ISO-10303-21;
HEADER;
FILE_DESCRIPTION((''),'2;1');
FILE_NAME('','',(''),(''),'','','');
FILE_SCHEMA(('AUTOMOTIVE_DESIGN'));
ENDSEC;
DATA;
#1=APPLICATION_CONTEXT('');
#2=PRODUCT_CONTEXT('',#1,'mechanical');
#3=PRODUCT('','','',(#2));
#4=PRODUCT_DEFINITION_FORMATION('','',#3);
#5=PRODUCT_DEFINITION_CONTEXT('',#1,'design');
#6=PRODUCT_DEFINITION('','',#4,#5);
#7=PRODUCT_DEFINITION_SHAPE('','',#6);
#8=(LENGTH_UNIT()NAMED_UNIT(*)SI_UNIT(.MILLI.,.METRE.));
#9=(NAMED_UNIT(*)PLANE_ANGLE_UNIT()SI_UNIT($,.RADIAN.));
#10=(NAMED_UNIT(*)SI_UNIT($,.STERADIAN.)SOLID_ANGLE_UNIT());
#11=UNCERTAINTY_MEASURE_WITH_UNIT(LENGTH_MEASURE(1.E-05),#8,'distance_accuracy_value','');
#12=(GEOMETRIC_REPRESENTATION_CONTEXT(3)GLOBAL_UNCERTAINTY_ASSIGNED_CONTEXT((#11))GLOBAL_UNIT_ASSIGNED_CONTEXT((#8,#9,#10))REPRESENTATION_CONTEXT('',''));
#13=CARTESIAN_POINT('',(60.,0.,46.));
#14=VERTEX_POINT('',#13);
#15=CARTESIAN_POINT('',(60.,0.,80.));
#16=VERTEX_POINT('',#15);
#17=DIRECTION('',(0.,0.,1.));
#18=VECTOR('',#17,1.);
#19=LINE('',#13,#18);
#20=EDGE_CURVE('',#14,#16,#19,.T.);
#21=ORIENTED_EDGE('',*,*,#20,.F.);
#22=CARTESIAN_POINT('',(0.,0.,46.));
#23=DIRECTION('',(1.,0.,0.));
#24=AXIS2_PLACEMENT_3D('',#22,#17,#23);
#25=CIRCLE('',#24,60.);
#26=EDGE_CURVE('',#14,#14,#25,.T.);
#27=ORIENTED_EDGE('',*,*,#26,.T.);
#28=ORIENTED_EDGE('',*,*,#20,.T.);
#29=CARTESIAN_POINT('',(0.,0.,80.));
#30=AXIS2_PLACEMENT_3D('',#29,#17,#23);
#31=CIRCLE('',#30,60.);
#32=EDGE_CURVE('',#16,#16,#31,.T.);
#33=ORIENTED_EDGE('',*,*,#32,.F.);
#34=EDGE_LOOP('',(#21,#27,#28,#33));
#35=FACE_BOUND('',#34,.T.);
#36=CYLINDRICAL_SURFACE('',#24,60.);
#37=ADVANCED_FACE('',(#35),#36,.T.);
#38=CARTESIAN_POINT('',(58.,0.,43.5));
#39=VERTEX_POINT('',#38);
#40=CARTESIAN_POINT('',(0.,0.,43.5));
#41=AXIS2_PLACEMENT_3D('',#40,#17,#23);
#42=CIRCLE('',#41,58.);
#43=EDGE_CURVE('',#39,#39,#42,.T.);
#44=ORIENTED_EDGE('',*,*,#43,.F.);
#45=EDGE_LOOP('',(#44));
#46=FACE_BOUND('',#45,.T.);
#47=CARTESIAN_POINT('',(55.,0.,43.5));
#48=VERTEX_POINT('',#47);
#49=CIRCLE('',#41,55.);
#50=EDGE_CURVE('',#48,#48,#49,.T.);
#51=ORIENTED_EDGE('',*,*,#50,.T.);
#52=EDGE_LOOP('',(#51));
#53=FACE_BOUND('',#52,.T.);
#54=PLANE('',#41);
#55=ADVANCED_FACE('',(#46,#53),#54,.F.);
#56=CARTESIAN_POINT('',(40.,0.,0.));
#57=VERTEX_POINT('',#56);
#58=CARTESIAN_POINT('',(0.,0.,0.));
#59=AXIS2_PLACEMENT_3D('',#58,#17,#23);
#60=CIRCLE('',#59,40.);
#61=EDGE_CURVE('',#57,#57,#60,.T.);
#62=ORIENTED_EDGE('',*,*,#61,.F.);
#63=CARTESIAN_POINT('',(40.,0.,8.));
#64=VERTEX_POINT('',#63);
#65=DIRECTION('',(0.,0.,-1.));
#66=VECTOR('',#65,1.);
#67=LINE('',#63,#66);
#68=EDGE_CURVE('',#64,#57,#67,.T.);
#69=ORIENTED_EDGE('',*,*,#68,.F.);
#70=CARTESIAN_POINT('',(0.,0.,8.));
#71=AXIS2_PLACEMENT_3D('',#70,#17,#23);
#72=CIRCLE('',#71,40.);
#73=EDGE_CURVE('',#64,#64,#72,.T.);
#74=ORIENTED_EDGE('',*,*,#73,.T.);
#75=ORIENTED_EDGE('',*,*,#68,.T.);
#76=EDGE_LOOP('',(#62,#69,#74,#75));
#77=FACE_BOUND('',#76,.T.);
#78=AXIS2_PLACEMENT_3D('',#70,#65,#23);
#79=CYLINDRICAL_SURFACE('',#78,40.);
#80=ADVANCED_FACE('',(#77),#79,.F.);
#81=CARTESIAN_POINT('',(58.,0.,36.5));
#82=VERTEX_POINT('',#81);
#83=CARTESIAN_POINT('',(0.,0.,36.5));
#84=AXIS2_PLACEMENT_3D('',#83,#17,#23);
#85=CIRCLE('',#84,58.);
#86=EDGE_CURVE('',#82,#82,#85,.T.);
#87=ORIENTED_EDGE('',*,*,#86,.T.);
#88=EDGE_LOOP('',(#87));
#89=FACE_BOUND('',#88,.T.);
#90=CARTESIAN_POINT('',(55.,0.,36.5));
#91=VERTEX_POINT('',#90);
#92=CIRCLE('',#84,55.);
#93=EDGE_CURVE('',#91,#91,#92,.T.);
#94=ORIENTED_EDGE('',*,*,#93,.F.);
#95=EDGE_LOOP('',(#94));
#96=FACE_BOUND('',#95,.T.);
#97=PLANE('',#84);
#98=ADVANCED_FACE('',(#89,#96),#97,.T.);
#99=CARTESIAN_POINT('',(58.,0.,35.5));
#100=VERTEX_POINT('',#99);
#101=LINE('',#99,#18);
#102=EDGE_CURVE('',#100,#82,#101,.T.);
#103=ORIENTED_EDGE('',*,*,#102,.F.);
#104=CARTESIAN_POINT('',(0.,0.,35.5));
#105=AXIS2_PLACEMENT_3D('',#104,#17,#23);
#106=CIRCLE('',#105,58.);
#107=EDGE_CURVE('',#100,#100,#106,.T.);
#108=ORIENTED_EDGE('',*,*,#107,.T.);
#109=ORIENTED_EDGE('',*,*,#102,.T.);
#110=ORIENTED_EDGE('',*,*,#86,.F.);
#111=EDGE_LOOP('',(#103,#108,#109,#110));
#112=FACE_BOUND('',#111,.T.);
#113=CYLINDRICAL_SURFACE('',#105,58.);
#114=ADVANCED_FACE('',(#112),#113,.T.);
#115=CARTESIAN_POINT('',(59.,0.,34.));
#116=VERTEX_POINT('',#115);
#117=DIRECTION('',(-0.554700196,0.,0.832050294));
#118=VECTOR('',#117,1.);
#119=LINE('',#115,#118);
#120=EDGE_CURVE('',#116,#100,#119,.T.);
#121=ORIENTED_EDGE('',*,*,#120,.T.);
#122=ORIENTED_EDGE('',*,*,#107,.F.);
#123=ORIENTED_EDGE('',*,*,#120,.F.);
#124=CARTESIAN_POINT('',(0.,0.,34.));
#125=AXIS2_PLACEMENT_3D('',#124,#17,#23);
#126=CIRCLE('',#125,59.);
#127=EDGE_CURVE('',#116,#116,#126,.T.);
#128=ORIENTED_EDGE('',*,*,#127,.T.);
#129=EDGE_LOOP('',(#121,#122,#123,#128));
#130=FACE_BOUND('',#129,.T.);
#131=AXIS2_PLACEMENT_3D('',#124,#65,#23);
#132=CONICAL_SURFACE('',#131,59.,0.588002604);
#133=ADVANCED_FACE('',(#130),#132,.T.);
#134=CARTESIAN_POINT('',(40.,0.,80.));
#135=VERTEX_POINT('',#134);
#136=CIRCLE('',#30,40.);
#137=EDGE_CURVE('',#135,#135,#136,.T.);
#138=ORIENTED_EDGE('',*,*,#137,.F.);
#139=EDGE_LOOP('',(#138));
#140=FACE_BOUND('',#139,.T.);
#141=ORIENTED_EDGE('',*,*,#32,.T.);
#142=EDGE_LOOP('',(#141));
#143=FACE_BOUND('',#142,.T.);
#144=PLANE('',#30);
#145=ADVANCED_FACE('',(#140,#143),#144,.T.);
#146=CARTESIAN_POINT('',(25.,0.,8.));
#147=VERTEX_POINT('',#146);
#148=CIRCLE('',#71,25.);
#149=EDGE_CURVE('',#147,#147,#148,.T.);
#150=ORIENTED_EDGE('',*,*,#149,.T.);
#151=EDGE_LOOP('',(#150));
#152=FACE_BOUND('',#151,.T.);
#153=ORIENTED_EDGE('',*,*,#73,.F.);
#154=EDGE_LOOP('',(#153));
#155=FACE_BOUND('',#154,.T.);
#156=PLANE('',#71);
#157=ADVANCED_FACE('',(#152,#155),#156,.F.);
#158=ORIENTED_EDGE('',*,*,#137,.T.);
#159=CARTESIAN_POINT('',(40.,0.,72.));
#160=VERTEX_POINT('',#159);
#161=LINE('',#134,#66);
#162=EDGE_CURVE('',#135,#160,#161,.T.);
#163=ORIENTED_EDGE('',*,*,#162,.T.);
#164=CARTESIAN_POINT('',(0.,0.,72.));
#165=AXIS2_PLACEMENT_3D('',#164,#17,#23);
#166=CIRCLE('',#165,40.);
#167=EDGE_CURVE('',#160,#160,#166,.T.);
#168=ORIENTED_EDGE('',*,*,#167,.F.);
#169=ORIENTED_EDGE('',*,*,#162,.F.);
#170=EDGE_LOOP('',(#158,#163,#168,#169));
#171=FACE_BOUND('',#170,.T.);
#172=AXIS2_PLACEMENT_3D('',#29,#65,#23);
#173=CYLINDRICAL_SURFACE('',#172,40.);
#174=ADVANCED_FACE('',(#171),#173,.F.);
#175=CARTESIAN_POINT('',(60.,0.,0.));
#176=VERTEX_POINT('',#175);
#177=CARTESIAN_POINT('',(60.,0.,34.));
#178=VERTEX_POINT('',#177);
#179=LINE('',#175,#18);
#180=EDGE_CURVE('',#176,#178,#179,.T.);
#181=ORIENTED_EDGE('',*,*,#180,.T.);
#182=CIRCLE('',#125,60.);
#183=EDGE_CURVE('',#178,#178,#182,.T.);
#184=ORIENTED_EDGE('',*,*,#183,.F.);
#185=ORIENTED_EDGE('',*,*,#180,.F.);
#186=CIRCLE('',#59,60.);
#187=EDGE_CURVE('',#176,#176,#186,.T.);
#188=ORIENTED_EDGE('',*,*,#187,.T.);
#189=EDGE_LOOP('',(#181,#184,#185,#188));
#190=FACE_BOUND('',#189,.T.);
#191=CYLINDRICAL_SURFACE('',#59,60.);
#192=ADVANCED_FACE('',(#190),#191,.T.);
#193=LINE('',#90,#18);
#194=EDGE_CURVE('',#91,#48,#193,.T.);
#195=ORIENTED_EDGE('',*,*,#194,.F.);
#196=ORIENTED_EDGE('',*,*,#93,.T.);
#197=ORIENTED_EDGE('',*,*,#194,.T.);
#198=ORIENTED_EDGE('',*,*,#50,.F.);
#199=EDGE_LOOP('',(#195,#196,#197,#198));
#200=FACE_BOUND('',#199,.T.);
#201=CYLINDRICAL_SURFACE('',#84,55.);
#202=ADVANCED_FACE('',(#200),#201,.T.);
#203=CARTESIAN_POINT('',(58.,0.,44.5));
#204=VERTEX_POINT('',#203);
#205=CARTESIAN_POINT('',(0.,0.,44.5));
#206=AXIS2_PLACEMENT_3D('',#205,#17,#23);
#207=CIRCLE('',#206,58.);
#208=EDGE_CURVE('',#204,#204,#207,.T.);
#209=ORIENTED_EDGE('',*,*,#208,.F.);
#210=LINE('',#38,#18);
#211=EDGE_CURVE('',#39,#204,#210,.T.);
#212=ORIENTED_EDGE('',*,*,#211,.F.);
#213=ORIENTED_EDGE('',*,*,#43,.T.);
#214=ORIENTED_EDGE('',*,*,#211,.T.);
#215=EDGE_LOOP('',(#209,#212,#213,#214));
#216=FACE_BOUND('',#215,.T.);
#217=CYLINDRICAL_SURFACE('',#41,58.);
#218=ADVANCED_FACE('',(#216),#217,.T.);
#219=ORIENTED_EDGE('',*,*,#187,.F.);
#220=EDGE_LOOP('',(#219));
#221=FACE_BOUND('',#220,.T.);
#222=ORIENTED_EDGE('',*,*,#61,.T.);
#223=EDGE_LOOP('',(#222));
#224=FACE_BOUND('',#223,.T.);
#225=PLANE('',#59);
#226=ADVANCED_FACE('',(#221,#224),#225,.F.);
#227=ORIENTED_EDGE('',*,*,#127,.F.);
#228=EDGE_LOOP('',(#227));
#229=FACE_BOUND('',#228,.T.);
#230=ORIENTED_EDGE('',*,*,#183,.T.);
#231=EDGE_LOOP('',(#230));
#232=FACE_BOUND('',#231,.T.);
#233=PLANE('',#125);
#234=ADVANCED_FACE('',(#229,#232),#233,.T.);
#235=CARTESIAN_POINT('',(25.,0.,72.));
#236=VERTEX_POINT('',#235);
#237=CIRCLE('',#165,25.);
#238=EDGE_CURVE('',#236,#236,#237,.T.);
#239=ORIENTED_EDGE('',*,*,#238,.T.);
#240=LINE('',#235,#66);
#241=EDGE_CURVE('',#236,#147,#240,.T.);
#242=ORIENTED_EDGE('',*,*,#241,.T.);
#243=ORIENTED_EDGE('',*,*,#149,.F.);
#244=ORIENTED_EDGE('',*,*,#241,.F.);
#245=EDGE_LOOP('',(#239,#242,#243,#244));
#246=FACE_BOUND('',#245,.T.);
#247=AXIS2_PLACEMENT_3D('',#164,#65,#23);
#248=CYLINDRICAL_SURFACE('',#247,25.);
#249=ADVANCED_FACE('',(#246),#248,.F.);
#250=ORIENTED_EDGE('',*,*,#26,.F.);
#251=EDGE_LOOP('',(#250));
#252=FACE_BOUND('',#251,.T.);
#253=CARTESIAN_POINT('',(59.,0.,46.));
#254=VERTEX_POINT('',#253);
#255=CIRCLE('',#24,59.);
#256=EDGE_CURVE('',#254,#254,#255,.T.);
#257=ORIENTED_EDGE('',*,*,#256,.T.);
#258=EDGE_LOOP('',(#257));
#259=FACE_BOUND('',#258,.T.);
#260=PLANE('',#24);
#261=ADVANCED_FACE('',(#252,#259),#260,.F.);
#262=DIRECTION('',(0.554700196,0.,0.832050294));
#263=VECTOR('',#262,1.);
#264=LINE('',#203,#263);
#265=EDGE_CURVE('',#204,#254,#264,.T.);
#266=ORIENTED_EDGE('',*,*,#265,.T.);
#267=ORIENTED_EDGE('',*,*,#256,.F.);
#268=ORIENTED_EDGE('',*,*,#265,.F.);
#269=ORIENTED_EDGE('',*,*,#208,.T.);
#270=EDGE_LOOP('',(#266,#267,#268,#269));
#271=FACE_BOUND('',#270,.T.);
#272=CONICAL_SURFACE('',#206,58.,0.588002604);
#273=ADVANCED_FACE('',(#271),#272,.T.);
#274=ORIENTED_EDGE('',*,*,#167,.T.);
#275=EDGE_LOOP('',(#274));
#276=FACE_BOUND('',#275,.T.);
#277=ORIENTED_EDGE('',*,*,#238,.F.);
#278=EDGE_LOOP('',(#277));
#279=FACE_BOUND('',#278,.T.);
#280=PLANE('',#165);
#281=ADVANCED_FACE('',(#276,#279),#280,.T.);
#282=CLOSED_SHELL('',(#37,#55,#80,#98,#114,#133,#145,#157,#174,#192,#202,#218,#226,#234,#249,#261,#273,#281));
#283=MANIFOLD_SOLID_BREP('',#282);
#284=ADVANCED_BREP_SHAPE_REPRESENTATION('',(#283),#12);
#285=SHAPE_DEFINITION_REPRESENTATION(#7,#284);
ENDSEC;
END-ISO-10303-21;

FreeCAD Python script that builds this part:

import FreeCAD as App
import Part
import Sketcher

V = App.Vector

doc = App.newDocument("Part")
body = doc.addObject("PartDesign::Body", "Body")

# Sketch on XZ plane
sketch1 = doc.addObject("Sketcher::SketchObject", "Sketch")
body.addObject(sketch1)
sketch1.AttachmentSupport = (doc.XZ_Plane, [""])
sketch1.MapMode = "FlatFace"
sketch1.addGeometry([
    Part.LineSegment(V(60, 80, 0), V(40, 80, 0)),  # 0
    Part.LineSegment(V(40, 80, 0), V(40, 72, 0)),  # 1
    Part.LineSegment(V(40, 72, 0), V(25, 72, 0)),  # 2
    Part.LineSegment(V(25, 72, 0), V(25, 8, 0)),  # 3
    Part.LineSegment(V(25, 8, 0), V(40, 8, 0)),  # 4
    Part.LineSegment(V(40, 8, 0), V(40, 0, 0)),  # 5
    Part.LineSegment(V(40, 0, 0), V(60, 0, 0)),  # 6
    Part.LineSegment(V(60, 0, 0), V(60, 34, 0)),  # 7
    Part.LineSegment(V(60, 34, 0), V(59, 34, 0)),  # 8
    Part.LineSegment(V(59, 34, 0), V(58, 35.5, 0)),  # 9
    Part.LineSegment(V(58, 35.5, 0), V(58, 36.5, 0)),  # 10
    Part.LineSegment(V(58, 36.5, 0), V(55, 36.5, 0)),  # 11
    Part.LineSegment(V(55, 36.5, 0), V(55, 43.5, 0)),  # 12
    Part.LineSegment(V(55, 43.5, 0), V(58, 43.5, 0)),  # 13
    Part.LineSegment(V(58, 43.5, 0), V(58, 44.5, 0)),  # 14
    Part.LineSegment(V(58, 44.5, 0), V(59, 46, 0)),  # 15
    Part.LineSegment(V(59, 46, 0), V(60, 46, 0)),  # 16
    Part.LineSegment(V(60, 46, 0), V(60, 80, 0)),  # 17
], False)
sketch1.addConstraint([
    Sketcher.Constraint("Coincident", 0, 2, 1, 1),
    Sketcher.Constraint("Coincident", 1, 2, 2, 1),
    Sketcher.Constraint("Coincident", 2, 2, 3, 1),
    Sketcher.Constraint("Coincident", 3, 2, 4, 1),
    Sketcher.Constraint("Coincident", 4, 2, 5, 1),
    Sketcher.Constraint("Coincident", 5, 2, 6, 1),
    Sketcher.Constraint("Coincident", 6, 2, 7, 1),
    Sketcher.Constraint("Coincident", 7, 2, 8, 1),
    Sketcher.Constraint("Coincident", 8, 2, 9, 1),
    Sketcher.Constraint("Coincident", 9, 2, 10, 1),
    Sketcher.Constraint("Coincident", 10, 2, 11, 1),
    Sketcher.Constraint("Coincident", 11, 2, 12, 1),
    Sketcher.Constraint("Coincident", 12, 2, 13, 1),
    Sketcher.Constraint("Coincident", 13, 2, 14, 1),
    Sketcher.Constraint("Coincident", 14, 2, 15, 1),
    Sketcher.Constraint("Coincident", 15, 2, 16, 1),
    Sketcher.Constraint("Coincident", 16, 2, 17, 1),
    Sketcher.Constraint("Coincident", 17, 2, 0, 1),
    Sketcher.Constraint("Horizontal", 0),
    Sketcher.Constraint("Vertical", 1),
    Sketcher.Constraint("Horizontal", 2),
    Sketcher.Constraint("Vertical", 3),
    Sketcher.Constraint("Horizontal", 4),
    Sketcher.Constraint("Vertical", 5),
    Sketcher.Constraint("Horizontal", 6),
    Sketcher.Constraint("Vertical", 7),
    Sketcher.Constraint("Horizontal", 8),
    Sketcher.Constraint("Vertical", 10),
    Sketcher.Constraint("Horizontal", 11),
    Sketcher.Constraint("Vertical", 12),
    Sketcher.Constraint("Horizontal", 13),
    Sketcher.Constraint("Vertical", 14),
    Sketcher.Constraint("Horizontal", 16),
    Sketcher.Constraint("Vertical", 17),
    Sketcher.Constraint("PointOnObject", 5, 2, -1),
    Sketcher.Constraint("Vertical", 1, 2, 4, 2),
    Sketcher.Constraint("Vertical", 10, 2, 13, 2),
    Sketcher.Constraint("Vertical", 8, 2, 15, 2),
    Sketcher.Constraint("Vertical", 7, 2, 16, 2),
    Sketcher.Constraint("Equal", 1, 5),
    Sketcher.Constraint("Equal", 16, 10),
    Sketcher.Constraint("Equal", 10, 14),
    Sketcher.Constraint("Equal", 7, 17),
    Sketcher.Constraint("Equal", 9, 15),
    Sketcher.Constraint("DistanceX", 0, 2, 0, 1, 20.0),
    Sketcher.Constraint("DistanceX", 2, 2, 2, 1, 15.0),
    Sketcher.Constraint("DistanceX", 8, 2, 8, 1, 1.0),
    Sketcher.Constraint("DistanceX", 11, 2, 11, 1, 3.0),
    Sketcher.Constraint("DistanceY", 1, 2, 1, 1, 8.0),
    Sketcher.Constraint("DistanceY", 3, 2, 3, 1, 64.0),
    Sketcher.Constraint("DistanceY", 7, 1, 7, 2, 34.0),
    Sketcher.Constraint("DistanceY", 12, 1, 12, 2, 7.0),
    Sketcher.Constraint("DistanceX", -1, 1, 0, 2, 40.0),
    Sketcher.Constraint("DistanceX", -1, 1, 9, 2, 58.0),
])
revolution = doc.addObject("PartDesign::Revolution", "Revolution")
body.addObject(revolution)
revolution.Profile = sketch1
revolution.ReferenceAxis = (sketch1, ["V_Axis"])
revolution.Angle = 360

doc.recompute()
